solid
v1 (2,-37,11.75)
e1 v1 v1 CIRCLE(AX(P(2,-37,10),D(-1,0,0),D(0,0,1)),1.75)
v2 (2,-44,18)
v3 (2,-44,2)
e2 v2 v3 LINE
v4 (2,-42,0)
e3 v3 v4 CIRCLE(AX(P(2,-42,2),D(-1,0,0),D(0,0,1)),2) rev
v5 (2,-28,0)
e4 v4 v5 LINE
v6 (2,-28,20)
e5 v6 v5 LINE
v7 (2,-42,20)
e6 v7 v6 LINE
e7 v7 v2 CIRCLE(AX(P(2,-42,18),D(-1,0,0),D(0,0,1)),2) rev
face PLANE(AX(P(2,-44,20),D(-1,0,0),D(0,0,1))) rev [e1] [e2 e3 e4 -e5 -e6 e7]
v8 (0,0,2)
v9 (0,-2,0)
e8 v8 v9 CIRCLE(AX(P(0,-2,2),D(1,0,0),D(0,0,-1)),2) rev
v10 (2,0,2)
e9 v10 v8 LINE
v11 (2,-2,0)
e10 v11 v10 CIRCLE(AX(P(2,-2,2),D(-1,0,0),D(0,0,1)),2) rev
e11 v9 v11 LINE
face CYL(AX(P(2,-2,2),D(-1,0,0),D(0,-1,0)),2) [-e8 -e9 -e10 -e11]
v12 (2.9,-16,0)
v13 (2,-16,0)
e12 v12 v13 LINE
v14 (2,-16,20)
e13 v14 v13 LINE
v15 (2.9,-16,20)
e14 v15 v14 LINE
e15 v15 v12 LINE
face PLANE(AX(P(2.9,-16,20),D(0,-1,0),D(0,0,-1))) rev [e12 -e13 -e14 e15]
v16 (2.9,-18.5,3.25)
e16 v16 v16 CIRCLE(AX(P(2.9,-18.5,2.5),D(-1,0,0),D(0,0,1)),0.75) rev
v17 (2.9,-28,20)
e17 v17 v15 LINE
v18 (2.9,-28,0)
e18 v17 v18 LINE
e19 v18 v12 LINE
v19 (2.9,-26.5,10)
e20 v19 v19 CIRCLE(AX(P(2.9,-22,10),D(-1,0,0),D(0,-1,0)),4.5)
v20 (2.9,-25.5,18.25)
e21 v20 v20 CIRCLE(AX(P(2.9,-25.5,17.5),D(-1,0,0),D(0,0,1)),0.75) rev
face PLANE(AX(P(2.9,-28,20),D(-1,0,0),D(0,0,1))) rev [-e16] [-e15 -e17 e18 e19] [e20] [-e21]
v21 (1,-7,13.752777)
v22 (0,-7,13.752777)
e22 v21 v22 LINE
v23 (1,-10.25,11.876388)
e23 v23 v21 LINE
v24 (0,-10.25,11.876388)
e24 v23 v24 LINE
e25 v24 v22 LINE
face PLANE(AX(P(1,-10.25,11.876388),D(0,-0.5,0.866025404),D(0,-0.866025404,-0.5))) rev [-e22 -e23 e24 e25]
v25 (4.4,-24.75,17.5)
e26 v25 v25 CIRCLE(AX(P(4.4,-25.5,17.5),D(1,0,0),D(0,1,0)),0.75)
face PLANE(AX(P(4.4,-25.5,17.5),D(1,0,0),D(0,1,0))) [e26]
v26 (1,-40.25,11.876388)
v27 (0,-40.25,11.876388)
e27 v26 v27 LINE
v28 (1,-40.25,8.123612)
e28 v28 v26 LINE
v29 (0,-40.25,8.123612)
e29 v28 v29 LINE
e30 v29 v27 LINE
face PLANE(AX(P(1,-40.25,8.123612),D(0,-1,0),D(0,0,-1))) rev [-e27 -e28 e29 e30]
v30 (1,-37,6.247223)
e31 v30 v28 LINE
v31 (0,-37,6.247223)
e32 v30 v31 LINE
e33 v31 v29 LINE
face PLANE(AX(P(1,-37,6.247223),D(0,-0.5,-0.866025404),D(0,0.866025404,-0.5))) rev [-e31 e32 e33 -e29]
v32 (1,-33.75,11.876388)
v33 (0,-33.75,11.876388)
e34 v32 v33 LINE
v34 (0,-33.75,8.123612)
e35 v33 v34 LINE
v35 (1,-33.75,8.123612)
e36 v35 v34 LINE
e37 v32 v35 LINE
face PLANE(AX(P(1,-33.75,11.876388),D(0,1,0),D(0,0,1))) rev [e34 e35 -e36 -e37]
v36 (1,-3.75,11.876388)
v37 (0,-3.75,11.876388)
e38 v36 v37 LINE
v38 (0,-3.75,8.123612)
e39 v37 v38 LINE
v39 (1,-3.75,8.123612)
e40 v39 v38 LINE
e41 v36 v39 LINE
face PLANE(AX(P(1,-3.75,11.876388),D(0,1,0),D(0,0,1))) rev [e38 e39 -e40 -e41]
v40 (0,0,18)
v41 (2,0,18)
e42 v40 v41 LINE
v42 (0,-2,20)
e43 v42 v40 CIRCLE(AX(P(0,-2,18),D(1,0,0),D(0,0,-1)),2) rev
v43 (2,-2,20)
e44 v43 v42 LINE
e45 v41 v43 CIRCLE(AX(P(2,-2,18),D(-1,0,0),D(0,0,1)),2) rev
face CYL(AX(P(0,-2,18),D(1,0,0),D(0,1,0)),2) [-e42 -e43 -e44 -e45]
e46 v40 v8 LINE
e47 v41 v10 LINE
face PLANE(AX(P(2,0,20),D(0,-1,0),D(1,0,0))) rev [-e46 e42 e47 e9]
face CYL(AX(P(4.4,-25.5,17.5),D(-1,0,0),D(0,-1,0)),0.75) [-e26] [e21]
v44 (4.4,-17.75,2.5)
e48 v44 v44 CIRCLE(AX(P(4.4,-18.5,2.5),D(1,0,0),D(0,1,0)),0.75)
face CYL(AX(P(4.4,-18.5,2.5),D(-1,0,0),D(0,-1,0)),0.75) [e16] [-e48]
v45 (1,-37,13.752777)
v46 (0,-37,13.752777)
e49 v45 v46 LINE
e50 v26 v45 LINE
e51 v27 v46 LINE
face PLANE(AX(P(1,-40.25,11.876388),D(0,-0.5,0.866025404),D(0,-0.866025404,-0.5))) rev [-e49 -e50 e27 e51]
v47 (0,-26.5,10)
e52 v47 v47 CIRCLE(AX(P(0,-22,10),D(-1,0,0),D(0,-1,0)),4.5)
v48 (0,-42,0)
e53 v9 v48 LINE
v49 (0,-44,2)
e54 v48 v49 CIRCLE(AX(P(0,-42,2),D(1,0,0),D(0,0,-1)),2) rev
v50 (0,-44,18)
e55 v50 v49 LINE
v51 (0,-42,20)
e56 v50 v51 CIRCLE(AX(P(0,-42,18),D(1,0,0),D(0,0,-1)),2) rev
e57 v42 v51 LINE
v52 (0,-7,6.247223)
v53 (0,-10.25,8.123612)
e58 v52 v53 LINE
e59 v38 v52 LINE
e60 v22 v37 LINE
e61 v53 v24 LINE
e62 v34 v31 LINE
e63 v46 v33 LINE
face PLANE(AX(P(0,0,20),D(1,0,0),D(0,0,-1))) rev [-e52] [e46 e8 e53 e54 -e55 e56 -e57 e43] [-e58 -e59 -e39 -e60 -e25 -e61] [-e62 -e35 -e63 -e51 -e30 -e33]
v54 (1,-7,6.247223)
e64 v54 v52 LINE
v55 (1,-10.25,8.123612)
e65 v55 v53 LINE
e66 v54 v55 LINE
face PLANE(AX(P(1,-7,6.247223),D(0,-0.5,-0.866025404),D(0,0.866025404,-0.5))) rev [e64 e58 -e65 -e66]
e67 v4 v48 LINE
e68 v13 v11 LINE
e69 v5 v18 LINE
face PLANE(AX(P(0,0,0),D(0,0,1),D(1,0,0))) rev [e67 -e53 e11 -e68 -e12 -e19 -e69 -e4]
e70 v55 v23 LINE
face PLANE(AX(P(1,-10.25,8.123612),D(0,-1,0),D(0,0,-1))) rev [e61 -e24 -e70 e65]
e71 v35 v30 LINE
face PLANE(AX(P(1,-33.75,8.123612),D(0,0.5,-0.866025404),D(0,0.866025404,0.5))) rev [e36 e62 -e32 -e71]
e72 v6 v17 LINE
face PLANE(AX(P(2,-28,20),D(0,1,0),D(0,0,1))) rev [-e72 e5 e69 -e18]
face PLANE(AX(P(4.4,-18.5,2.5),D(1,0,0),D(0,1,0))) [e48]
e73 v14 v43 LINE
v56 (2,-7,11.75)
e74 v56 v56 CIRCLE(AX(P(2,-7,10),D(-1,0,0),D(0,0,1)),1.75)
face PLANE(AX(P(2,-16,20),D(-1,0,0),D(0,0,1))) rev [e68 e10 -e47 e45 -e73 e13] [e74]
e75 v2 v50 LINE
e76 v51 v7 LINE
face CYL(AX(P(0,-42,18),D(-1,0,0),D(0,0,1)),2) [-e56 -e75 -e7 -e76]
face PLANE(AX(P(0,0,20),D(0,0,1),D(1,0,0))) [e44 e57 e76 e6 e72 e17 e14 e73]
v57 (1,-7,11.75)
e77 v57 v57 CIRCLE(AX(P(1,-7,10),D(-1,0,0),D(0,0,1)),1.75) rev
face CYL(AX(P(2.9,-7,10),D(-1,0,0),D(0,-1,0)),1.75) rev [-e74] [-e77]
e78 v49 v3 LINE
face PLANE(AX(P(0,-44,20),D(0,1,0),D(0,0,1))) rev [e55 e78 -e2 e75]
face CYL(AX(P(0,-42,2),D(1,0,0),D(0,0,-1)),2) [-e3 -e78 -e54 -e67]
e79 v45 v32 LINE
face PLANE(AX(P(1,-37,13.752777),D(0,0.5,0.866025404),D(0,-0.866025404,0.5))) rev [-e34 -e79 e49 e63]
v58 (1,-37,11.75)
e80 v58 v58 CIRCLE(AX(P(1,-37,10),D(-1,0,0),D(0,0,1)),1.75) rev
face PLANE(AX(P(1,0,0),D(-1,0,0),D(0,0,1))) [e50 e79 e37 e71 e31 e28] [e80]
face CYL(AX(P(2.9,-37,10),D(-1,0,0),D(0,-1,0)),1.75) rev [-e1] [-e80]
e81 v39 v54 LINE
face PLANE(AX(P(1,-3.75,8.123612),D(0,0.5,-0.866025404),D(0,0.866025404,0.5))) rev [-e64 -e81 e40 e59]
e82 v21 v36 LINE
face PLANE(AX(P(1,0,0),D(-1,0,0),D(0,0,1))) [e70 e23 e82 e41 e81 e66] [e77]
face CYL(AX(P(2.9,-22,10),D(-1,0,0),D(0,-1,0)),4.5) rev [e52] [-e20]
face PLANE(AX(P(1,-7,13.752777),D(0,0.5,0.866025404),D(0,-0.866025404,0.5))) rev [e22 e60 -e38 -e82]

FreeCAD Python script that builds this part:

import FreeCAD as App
import Part
import Sketcher
Q = App.Units.Quantity


def edges_at(feature, points):
    """Names of the edges that pass closest to the given points."""
    edges = feature.Shape.Edges
    near = lambda p: min(range(len(edges)), key=lambda i: edges[i].distToShape(Part.Vertex(*p))[0])
    return sorted({f"Edge{near(p) + 1}" for p in points})

doc = App.newDocument("Part")
params = doc.addObject("Spreadsheet::Sheet", "Params")
for row, (alias, value) in enumerate([
    ("sketch1_width", "2 mm"),
    ("sketch1_height", "44 mm"),
    ("sketch1_height2", "16 mm"),
    ("sketch1_width2", "0.9 mm"),
    ("pad1_length", "20 mm"),
    ("sketch2_diameter", "9 mm"),
    ("sketch2_diameter2", "3.5 mm"),
    ("sketch3_diameter", "1.5 mm"),
    ("pad2_length", "1.5 mm"),
    ("fillet_radius", "2 mm"),
    ("pocket2_length", "1 mm"),
], start=1):
    params.set(f"A{row}", alias)
    params.set(f"B{row}", "=" + value)
    params.setAlias(f"B{row}", alias)

body = doc.addObject("PartDesign::Body", "Body")

# Sketch on XY plane
sketch1 = doc.addObject("Sketcher::SketchObject", "Sketch")
body.addObject(sketch1)
sketch1.AttachmentSupport = (doc.XY_Plane, [""])
sketch1.MapMode = "FlatFace"
sketch1.addGeometry(Part.LineSegment(App.Vector(0, 0, 0), App.Vector(0, -44, 0)), False)
sketch1.addGeometry(Part.LineSegment(App.Vector(0, -44, 0), App.Vector(2, -44, 0)), False)
sketch1.addGeometry(Part.LineSegment(App.Vector(2, -44, 0), App.Vector(2, -28, 0)), False)
sketch1.addGeometry(Part.LineSegment(App.Vector(2, -28, 0), App.Vector(2.9, -28, 0)), False)
sketch1.addGeometry(Part.LineSegment(App.Vector(2.9, -28, 0), App.Vector(2.9, -16, 0)), False)
sketch1.addGeometry(Part.LineSegment(App.Vector(2.9, -16, 0), App.Vector(2, -16, 0)), False)
sketch1.addGeometry(Part.LineSegment(App.Vector(2, -16, 0), App.Vector(2, 0, 0)), False)
sketch1.addGeometry(Part.LineSegment(App.Vector(2, 0, 0), App.Vector(0, 0, 0)), False)
sketch1.addConstraint(Sketcher.Constraint("Coincident", 0, 2, 1, 1))
sketch1.addConstraint(Sketcher.Constraint("Coincident", 1, 2, 2, 1))
sketch1.addConstraint(Sketcher.Constraint("Coincident", 2, 2, 3, 1))
sketch1.addConstraint(Sketcher.Constraint("Coincident", 3, 2, 4, 1))
sketch1.addConstraint(Sketcher.Constraint("Coincident", 4, 2, 5, 1))
sketch1.addConstraint(Sketcher.Constraint("Coincident", 5, 2, 6, 1))
sketch1.addConstraint(Sketcher.Constraint("Coincident", 6, 2, 7, 1))
sketch1.addConstraint(Sketcher.Constraint("Coincident", 7, 2, 0, 1))
sketch1.addConstraint(Sketcher.Constraint("Vertical", 0))
sketch1.addConstraint(Sketcher.Constraint("Horizontal", 1))
sketch1.addConstraint(Sketcher.Constraint("Vertical", 2))
sketch1.addConstraint(Sketcher.Constraint("Horizontal", 3))
sketch1.addConstraint(Sketcher.Constraint("Vertical", 4))
sketch1.addConstraint(Sketcher.Constraint("Horizontal", 5))
sketch1.addConstraint(Sketcher.Constraint("Vertical", 6))
sketch1.addConstraint(Sketcher.Constraint("Horizontal", 7))
sketch1.addConstraint(Sketcher.Constraint("Coincident", 7, 2, -1, 1))
sketch1.addConstraint(Sketcher.Constraint("Vertical", 2, 2, 5, 2))
sketch1.addConstraint(Sketcher.Constraint("Equal", 2, 6))
sketch1.addConstraint(Sketcher.Constraint("DistanceX", 1, 1, 1, 2, 2.0))
sketch1.addConstraint(Sketcher.Constraint("DistanceY", 0, 2, 0, 1, 44.0))
sketch1.addConstraint(Sketcher.Constraint("DistanceY", 2, 1, 2, 2, 16.0))
sketch1.addConstraint(Sketcher.Constraint("DistanceX", 3, 1, 3, 2, 0.9))
sketch1.setExpression("Constraints[19]", "Params.sketch1_width")
sketch1.setExpression("Constraints[20]", "Params.sketch1_height")
sketch1.setExpression("Constraints[21]", "Params.sketch1_height2")
sketch1.setExpression("Constraints[22]", "Params.sketch1_width2")
pad1 = doc.addObject("PartDesign::Pad", "Pad")
body.addObject(pad1)
pad1.Profile = sketch1
pad1.setExpression("Length", "Params.pad1_length")

# Sketch on YZ plane
sketch2 = doc.addObject("Sketcher::SketchObject", "Sketch001")
body.addObject(sketch2)
sketch2.AttachmentSupport = (doc.YZ_Plane, [""])
sketch2.MapMode = "FlatFace"
sketch2.addGeometry(Part.Circle(App.Vector(-7, 10, 0), App.Vector(0, 0, 1), 1.8), False)
sketch2.addGeometry(Part.Circle(App.Vector(-37, 10, 0), App.Vector(0, 0, 1), 1.8), False)
sketch2.addGeometry(Part.Circle(App.Vector(-22, 10, 0), App.Vector(0, 0, 1), 4.5), False)
sketch2.addConstraint(Sketcher.Constraint("Equal", 0, 1))
sketch2.addConstraint(Sketcher.Constraint("Horizontal", 0, 3, 1, 3))
sketch2.addConstraint(Sketcher.Constraint("Horizontal", 1, 3, 2, 3))
sketch2.addConstraint(Sketcher.Constraint("Diameter", 2, 9.0))
sketch2.addConstraint(Sketcher.Constraint("Diameter", 0, 3.5))
sketch2.addConstraint(Sketcher.Constraint("DistanceX", 0, 3, -1, 1, 7.0))
sketch2.addConstraint(Sketcher.Constraint("DistanceY", -1, 1, 0, 3, 10.0))
sketch2.addConstraint(Sketcher.Constraint("DistanceX", 1, 3, -1, 1, 37.0))
sketch2.addConstraint(Sketcher.Constraint("DistanceX", 2, 3, -1, 1, 22.0))
sketch2.setExpression("Constraints[3]", "Params.sketch2_diameter")
sketch2.setExpression("Constraints[4]", "Params.sketch2_diameter2")
pocket1 = doc.addObject("PartDesign::Pocket", "Pocket")
body.addObject(pocket1)
pocket1.Profile = sketch2
pocket1.Type = "ThroughAll"
pocket1.Reversed = True

# Sketch on YZ plane
sketch3 = doc.addObject("Sketcher::SketchObject", "Sketch002")
body.addObject(sketch3)
sketch3.AttachmentSupport = (doc.YZ_Plane, [""])
sketch3.MapMode = "FlatFace"
sketch3.AttachmentOffset = App.Placement(App.Vector(0, 0, 2.9), App.Rotation())
sketch3.addGeometry(Part.Circle(App.Vector(-25.5, 17.5, 0), App.Vector(0, 0, 1), 0.8), False)
sketch3.addGeometry(Part.Circle(App.Vector(-18.5, 2.5, 0), App.Vector(0, 0, 1), 0.8), False)
sketch3.addConstraint(Sketcher.Constraint("Equal", 0, 1))
sketch3.addConstraint(Sketcher.Constraint("Diameter", 0, 1.5))
sketch3.addConstraint(Sketcher.Constraint("DistanceX", 0, 3, 1, 3, 7.0))
sketch3.addConstraint(Sketcher.Constraint("DistanceY", 1, 3, 0, 3, 15.0))
sketch3.addConstraint(Sketcher.Constraint("DistanceX", 0, 3, -1, 1, 25.5))
sketch3.addConstraint(Sketcher.Constraint("DistanceY", -1, 1, 0, 3, 17.5))
sketch3.setExpression("Constraints[1]", "Params.sketch3_diameter")
pad2 = doc.addObject("PartDesign::Pad", "Pad001")
body.addObject(pad2)
pad2.Profile = sketch3
pad2.setExpression("Length", "Params.pad2_length")
doc.recompute()

fillet = doc.addObject("PartDesign::Fillet", "Fillet")
body.addObject(fillet)
fillet.Base = (pad2, edges_at(pad2, [
    (1, -44, 20),
    (1, 0, 0),
    (1, 0, 20),
    (1, -44, 0),
]))
fillet.setExpression("Radius", "Params.fillet_radius")

# Sketch on YZ plane
sketch4 = doc.addObject("Sketcher::SketchObject", "Sketch003")
body.addObject(sketch4)
sketch4.AttachmentSupport = (doc.YZ_Plane, [""])
sketch4.MapMode = "FlatFace"
sketch4.addGeometry(Part.LineSegment(App.Vector(-10.2, 11.9, 0), App.Vector(-7, 13.8, 0)), False)
sketch4.addGeometry(Part.LineSegment(App.Vector(-7, 13.8, 0), App.Vector(-3.8, 11.9, 0)), False)
sketch4.addGeometry(Part.LineSegment(App.Vector(-3.8, 11.9, 0), App.Vector(-3.8, 8.1, 0)), False)
sketch4.addGeometry(Part.LineSegment(App.Vector(-3.8, 8.1, 0), App.Vector(-7, 6.2, 0)), False)
sketch4.addGeometry(Part.LineSegment(App.Vector(-7, 6.2, 0), App.Vector(-10.2, 8.1, 0)), False)
sketch4.addGeometry(Part.LineSegment(App.Vector(-10.2, 8.1, 0), App.Vector(-10.2, 11.9, 0)), False)
sketch4.addGeometry(Part.LineSegment(App.Vector(-40.2, 11.9, 0), App.Vector(-37, 13.8, 0)), False)
sketch4.addGeometry(Part.LineSegment(App.Vector(-37, 13.8, 0), App.Vector(-33.8, 11.9, 0)), False)
sketch4.addGeometry(Part.LineSegment(App.Vector(-33.8, 11.9, 0), App.Vector(-33.8, 8.1, 0)), False)
sketch4.addGeometry(Part.LineSegment(App.Vector(-33.8, 8.1, 0), App.Vector(-37, 6.2, 0)), False)
sketch4.addGeometry(Part.LineSegment(App.Vector(-37, 6.2, 0), App.Vector(-40.2, 8.1, 0)), False)
sketch4.addGeometry(Part.LineSegment(App.Vector(-40.2, 8.1, 0), App.Vector(-40.2, 11.9, 0)), False)
sketch4.addConstraint(Sketcher.Constraint("Coincident", 0, 2, 1, 1))
sketch4.addConstraint(Sketcher.Constraint("Coincident", 1, 2, 2, 1))
sketch4.addConstraint(Sketcher.Constraint("Coincident", 2, 2, 3, 1))
sketch4.addConstraint(Sketcher.Constraint("Coincident", 3, 2, 4, 1))
sketch4.addConstraint(Sketcher.Constraint("Coincident", 4, 2, 5, 1))
sketch4.addConstraint(Sketcher.Constraint("Coincident", 5, 2, 0, 1))
sketch4.addConstraint(Sketcher.Constraint("Coincident", 6, 2, 7, 1))
sketch4.addConstraint(Sketcher.Constraint("Coincident", 7, 2, 8, 1))
sketch4.addConstraint(Sketcher.Constraint("Coincident", 8, 2, 9, 1))
sketch4.addConstraint(Sketcher.Constraint("Coincident", 9, 2, 10, 1))
sketch4.addConstraint(Sketcher.Constraint("Coincident", 10, 2, 11, 1))
sketch4.addConstraint(Sketcher.Constraint("Coincident", 11, 2, 6, 1))
sketch4.addConstraint(Sketcher.Constraint("Vertical", 2))
sketch4.addConstraint(Sketcher.Constraint("Vertical", 5))
sketch4.addConstraint(Sketcher.Constraint("Vertical", 8))
sketch4.addConstraint(Sketcher.Constraint("Vertical", 11))
sketch4.addConstraint(Sketcher.Constraint("Parallel", 0, 3))
sketch4.addConstraint(Sketcher.Constraint("Parallel", 1, 4))
sketch4.addConstraint(Sketcher.Constraint("Parallel", 3, 6))
sketch4.addConstraint(Sketcher.Constraint("Parallel", 4, 7))
sketch4.addConstraint(Sketcher.Constraint("Parallel", 6, 9))
sketch4.addConstraint(Sketcher.Constraint("Parallel", 7, 10))
sketch4.addConstraint(Sketcher.Constraint("Horizontal", 2, 2, 4, 2))
sketch4.addConstraint(Sketcher.Constraint("Horizontal", 1, 2, 5, 2))
sketch4.addConstraint(Sketcher.Constraint("Horizontal", 0, 2, 6, 2))
sketch4.addConstraint(Sketcher.Constraint("Horizontal", 5, 2, 7, 2))
sketch4.addConstraint(Sketcher.Constraint("Horizontal", 4, 2, 8, 2))
sketch4.addConstraint(Sketcher.Constraint("Horizontal", 3, 2, 9, 2))
sketch4.addConstraint(Sketcher.Constraint("Horizontal", 8, 2, 10, 2))
sketch4.addConstraint(Sketcher.Constraint("Vertical", 0, 2, 3, 2))
sketch4.addConstraint(Sketcher.Constraint("Angle", 0, Q("30 deg")))
sketch4.addConstraint(Sketcher.Constraint("DistanceX", 0, 2, -1, 1, 7.0))
sketch4.addConstraint(Sketcher.Constraint("DistanceX", 6, 2, -1, 1, 37.0))
sketch4.addConstraint(Sketcher.Constraint("DistanceX", 4, 2, 2, 2, 6.5))
sketch4.addConstraint(Sketcher.Constraint("DistanceY", 2, 2, 2, 1, 3.752777))
sketch4.addConstraint(Sketcher.Constraint("DistanceY", -1, 1, 1, 2, 11.876388))
pocket2 = doc.addObject("PartDesign::Pocket", "Pocket001")
body.addObject(pocket2)
pocket2.Profile = sketch4
pocket2.setExpression("Length", "Params.pocket2_length")
pocket2.Reversed = True

doc.recompute()
